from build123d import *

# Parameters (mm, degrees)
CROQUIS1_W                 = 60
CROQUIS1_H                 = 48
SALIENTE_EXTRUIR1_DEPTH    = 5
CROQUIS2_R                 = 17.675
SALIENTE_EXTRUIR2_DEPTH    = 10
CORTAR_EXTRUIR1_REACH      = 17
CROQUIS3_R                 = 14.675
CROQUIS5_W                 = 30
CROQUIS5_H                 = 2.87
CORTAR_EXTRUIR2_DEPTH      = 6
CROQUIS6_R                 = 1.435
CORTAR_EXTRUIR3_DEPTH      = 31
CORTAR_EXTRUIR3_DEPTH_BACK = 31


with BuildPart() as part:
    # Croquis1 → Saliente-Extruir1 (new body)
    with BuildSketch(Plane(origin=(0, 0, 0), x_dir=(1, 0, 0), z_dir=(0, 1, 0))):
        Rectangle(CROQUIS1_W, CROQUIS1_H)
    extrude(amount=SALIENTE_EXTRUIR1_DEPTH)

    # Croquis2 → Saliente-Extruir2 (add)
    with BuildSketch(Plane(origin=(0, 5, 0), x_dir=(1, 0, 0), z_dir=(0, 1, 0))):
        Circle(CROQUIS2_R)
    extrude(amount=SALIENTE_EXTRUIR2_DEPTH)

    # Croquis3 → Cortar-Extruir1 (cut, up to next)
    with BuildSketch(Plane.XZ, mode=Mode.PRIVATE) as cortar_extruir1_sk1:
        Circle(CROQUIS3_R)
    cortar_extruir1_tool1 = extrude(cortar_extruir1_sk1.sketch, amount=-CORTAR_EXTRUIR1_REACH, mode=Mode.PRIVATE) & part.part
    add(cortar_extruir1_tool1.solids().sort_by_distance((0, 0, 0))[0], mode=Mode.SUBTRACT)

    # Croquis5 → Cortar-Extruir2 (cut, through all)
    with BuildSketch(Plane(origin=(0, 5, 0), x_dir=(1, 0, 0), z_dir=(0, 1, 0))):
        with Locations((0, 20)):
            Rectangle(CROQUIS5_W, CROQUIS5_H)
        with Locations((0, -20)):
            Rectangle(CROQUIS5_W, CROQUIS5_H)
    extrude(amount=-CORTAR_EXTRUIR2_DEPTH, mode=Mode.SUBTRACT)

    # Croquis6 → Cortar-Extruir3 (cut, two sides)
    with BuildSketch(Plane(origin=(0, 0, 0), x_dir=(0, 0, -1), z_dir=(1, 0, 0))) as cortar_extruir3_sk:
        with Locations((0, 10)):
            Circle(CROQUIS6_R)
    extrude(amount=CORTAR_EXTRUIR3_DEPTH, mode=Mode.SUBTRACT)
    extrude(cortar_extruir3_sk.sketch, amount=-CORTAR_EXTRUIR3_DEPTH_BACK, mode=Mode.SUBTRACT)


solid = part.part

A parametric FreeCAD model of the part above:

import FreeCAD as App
import Part
import Sketcher
from FreeCAD import Vector

doc = App.newDocument("Part")
body = doc.addObject("PartDesign::Body", "Body")

# Sketch on XZ plane
sketch1 = doc.addObject("Sketcher::SketchObject", "Sketch")
body.addObject(sketch1)
sketch1.AttachmentSupport = (doc.XZ_Plane, [""])
sketch1.MapMode = "FlatFace"
sketch1.addGeometry([
    Part.LineSegment(Vector(-30, -24, 0), Vector(-30, 24, 0)),
    Part.LineSegment(Vector(-30, 24, 0), Vector(30, 24, 0)),
    Part.LineSegment(Vector(30, 24, 0), Vector(30, -24, 0)),
    Part.LineSegment(Vector(30, -24, 0), Vector(-30, -24, 0)),
], False)
sketch1.addConstraint([
    Sketcher.Constraint("Coincident", 0, 2, 1, 1),
    Sketcher.Constraint("Coincident", 1, 2, 2, 1),
    Sketcher.Constraint("Coincident", 2, 2, 3, 1),
    Sketcher.Constraint("Coincident", 3, 2, 0, 1),
    Sketcher.Constraint("Vertical", 0),
    Sketcher.Constraint("Horizontal", 1),
    Sketcher.Constraint("Vertical", 2),
    Sketcher.Constraint("Horizontal", 3),
    Sketcher.Constraint("Symmetric", 0, 2, 2, 2, -1, 1),
    Sketcher.Constraint("DistanceX", 1, 1, 1, 2, 60.0),
    Sketcher.Constraint("DistanceY", 0, 1, 0, 2, 48.0),
])
pad1 = doc.addObject("PartDesign::Pad", "Pad")
body.addObject(pad1)
pad1.Profile = sketch1
pad1.Length = 5
pad1.Reversed = True

# Sketch on XZ plane
sketch2 = doc.addObject("Sketcher::SketchObject", "Sketch001")
body.addObject(sketch2)
sketch2.AttachmentSupport = (doc.XZ_Plane, [""])
sketch2.MapMode = "FlatFace"
sketch2.AttachmentOffset = App.Placement(Vector(0, 0, -5), App.Rotation())
sketch2.addGeometry(Part.Circle(Vector(0, 0, 0), Vector(0, 0, 1), 18), False)
sketch2.addConstraint([
    Sketcher.Constraint("Coincident", 0, 3, -1, 1),
    Sketcher.Constraint("Diameter", 0, 35.35),
])
pad2 = doc.addObject("PartDesign::Pad", "Pad001")
body.addObject(pad2)
pad2.Profile = sketch2
pad2.Length = 10
pad2.Reversed = True

# Sketch on XZ plane
sketch3 = doc.addObject("Sketcher::SketchObject", "Sketch002")
body.addObject(sketch3)
sketch3.AttachmentSupport = (doc.XZ_Plane, [""])
sketch3.MapMode = "FlatFace"
sketch3.addGeometry(Part.Circle(Vector(0, 0, 0), Vector(0, 0, 1), 15), False)
sketch3.addConstraint([
    Sketcher.Constraint("Coincident", 0, 3, -1, 1),
    Sketcher.Constraint("Diameter", 0, 29.35),
])
pocket1 = doc.addObject("PartDesign::Pocket", "Pocket")
body.addObject(pocket1)
pocket1.Profile = sketch3
pocket1.Type = "UpToFirst"

# Sketch on XZ plane
sketch4 = doc.addObject("Sketcher::SketchObject", "Sketch003")
body.addObject(sketch4)
sketch4.AttachmentSupport = (doc.XZ_Plane, [""])
sketch4.MapMode = "FlatFace"
sketch4.AttachmentOffset = App.Placement(Vector(0, 0, -5), App.Rotation())
sketch4.addGeometry([
    Part.LineSegment(Vector(-15, -21.4, 0), Vector(-15, -18.6, 0)),  # 0
    Part.LineSegment(Vector(-15, -18.6, 0), Vector(15, -18.6, 0)),  # 1
    Part.LineSegment(Vector(15, -18.6, 0), Vector(15, -21.4, 0)),  # 2
    Part.LineSegment(Vector(15, -21.4, 0), Vector(-15, -21.4, 0)),  # 3
    Part.LineSegment(Vector(-15, 18.6, 0), Vector(-15, 21.4, 0)),  # 4
    Part.LineSegment(Vector(-15, 21.4, 0), Vector(15, 21.4, 0)),  # 5
    Part.LineSegment(Vector(15, 21.4, 0), Vector(15, 18.6, 0)),  # 6
    Part.LineSegment(Vector(15, 18.6, 0), Vector(-15, 18.6, 0)),  # 7
], False)
sketch4.addConstraint([
    Sketcher.Constraint("Coincident", 0, 2, 1, 1),
    Sketcher.Constraint("Coincident", 1, 2, 2, 1),
    Sketcher.Constraint("Coincident", 2, 2, 3, 1),
    Sketcher.Constraint("Coincident", 3, 2, 0, 1),
    Sketcher.Constraint("Coincident", 4, 2, 5, 1),
    Sketcher.Constraint("Coincident", 5, 2, 6, 1),
    Sketcher.Constraint("Coincident", 6, 2, 7, 1),
    Sketcher.Constraint("Coincident", 7, 2, 4, 1),
    Sketcher.Constraint("Vertical", 0),
    Sketcher.Constraint("Horizontal", 1),
    Sketcher.Constraint("Vertical", 2),
    Sketcher.Constraint("Horizontal", 3),
    Sketcher.Constraint("Vertical", 4),
    Sketcher.Constraint("Horizontal", 5),
    Sketcher.Constraint("Vertical", 6),
    Sketcher.Constraint("Horizontal", 7),
    Sketcher.Constraint("Symmetric", 2, 2, 4, 2, -1, 1),
    Sketcher.Constraint("Symmetric", 0, 2, 6, 2, -1, 1),
    Sketcher.Constraint("Vertical", 3, 2, 4, 2),
    Sketcher.Constraint("DistanceX", 1, 1, 1, 2, 30.0),
    Sketcher.Constraint("DistanceY", 0, 2, 4, 2, 40.0),
    Sketcher.Constraint("DistanceY", 0, 1, 0, 2, 2.87),
])
pocket2 = doc.addObject("PartDesign::Pocket", "Pocket001")
body.addObject(pocket2)
pocket2.Profile = sketch4
pocket2.Type = "ThroughAll"
pocket2.Reversed = True

# Sketch on YZ plane
sketch5 = doc.addObject("Sketcher::SketchObject", "Sketch004")
body.addObject(sketch5)
sketch5.AttachmentSupport = (doc.YZ_Plane, [""])
sketch5.MapMode = "FlatFace"
sketch5.addGeometry(Part.Circle(Vector(10, 0, 0), Vector(0, 0, 1), 1.4), False)
sketch5.addConstraint([
    Sketcher.Constraint("PointOnObject", 0, 3, -1),
    Sketcher.Constraint("Diameter", 0, 2.87),
    Sketcher.Constraint("DistanceX", -1, 1, 0, 3, 10.0),
])
pocket3 = doc.addObject("PartDesign::Pocket", "Pocket002")
body.addObject(pocket3)
pocket3.Profile = sketch5
pocket3.Type = "ThroughAll"
pocket3.Midplane = True

doc.recompute()
